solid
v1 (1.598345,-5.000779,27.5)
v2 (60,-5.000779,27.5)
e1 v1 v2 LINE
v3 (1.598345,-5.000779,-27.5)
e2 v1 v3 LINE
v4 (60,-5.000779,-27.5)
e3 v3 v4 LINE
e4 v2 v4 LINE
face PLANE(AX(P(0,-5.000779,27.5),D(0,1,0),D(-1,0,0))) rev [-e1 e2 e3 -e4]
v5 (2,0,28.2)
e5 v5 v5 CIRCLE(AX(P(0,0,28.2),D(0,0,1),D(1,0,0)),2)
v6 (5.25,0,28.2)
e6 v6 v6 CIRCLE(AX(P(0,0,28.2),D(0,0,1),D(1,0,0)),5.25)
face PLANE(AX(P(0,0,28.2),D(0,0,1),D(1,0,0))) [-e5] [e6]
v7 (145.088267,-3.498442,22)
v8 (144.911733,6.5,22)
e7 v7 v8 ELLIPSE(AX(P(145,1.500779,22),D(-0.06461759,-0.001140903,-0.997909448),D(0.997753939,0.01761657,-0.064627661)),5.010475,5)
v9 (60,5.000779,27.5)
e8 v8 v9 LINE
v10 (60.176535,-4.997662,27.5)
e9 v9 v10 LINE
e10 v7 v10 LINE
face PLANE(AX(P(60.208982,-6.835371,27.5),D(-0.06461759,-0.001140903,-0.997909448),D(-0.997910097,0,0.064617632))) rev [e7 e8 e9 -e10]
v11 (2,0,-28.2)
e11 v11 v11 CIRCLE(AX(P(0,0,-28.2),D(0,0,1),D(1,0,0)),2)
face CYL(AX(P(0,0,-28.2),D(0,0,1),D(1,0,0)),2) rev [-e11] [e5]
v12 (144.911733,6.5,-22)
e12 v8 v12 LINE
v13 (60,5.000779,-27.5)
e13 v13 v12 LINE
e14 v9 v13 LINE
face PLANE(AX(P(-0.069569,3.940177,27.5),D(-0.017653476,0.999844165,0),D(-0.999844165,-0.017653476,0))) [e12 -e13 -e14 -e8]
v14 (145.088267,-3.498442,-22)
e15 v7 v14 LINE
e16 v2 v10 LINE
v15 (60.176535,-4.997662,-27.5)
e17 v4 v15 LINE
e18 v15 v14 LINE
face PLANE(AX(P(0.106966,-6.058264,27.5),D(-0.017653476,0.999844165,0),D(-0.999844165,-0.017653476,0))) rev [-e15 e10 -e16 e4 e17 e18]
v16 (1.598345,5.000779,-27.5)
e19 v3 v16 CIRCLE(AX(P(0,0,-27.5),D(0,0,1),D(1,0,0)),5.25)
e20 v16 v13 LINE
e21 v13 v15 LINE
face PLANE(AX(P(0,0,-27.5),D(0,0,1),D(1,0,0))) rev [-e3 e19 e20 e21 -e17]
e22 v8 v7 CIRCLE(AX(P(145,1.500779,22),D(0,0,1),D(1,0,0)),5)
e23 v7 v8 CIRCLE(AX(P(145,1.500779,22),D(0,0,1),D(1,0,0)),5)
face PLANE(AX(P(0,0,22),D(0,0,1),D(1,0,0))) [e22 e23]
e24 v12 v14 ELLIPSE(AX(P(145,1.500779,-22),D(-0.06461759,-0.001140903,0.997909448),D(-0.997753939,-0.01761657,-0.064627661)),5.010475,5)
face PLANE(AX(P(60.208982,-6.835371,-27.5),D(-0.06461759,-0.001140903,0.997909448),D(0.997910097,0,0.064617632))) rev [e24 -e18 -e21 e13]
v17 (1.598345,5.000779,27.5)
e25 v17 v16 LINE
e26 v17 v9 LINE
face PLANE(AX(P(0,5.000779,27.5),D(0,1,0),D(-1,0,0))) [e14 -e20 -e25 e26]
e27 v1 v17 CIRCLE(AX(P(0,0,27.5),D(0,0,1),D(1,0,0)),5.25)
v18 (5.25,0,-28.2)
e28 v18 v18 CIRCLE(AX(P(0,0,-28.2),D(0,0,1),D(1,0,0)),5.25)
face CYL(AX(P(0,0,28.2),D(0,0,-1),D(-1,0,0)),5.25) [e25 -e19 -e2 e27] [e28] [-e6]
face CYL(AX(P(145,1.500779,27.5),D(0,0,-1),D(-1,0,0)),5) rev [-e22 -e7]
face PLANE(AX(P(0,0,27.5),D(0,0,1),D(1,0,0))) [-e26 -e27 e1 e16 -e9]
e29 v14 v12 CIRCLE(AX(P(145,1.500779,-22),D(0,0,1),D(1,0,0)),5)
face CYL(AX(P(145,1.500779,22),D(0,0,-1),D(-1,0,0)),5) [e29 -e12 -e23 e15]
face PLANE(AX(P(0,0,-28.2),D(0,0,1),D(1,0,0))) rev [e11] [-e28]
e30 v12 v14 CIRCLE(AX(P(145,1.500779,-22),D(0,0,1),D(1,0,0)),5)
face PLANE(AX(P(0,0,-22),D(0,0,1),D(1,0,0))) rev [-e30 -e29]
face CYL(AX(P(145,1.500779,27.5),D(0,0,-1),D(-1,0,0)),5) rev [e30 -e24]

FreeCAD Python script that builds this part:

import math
import FreeCAD as App
import Part
import Sketcher
from FreeCAD import Vector
Q = App.Units.Quantity

doc = App.newDocument("Part")
body = doc.addObject("PartDesign::Body", "Body")

sketch1 = doc.addObject("Sketcher::SketchObject", "Sketch")
body.addObject(sketch1)
sketch1.AttachmentSupport = (doc.XY_Plane, [""])
sketch1.MapMode = "FlatFace"
sketch1.addGeometry(Part.Circle(Vector(0, 0, 0), Vector(0, 0, 1), 5), False)
sketch1.addConstraint(Sketcher.Constraint("Coincident", 0, 3, -1, 1))
sketch1.addConstraint(Sketcher.Constraint("Diameter", 0, Q("10.5 mm")))
pad1 = doc.addObject("PartDesign::Pad", "Pad")
body.addObject(pad1)
pad1.Profile = sketch1
pad1.Length = 56.4
pad1.Midplane = True

sketch2 = doc.addObject("Sketcher::SketchObject", "Sketch001")
body.addObject(sketch2)
sketch2.AttachmentSupport = (doc.XY_Plane, [""])
sketch2.MapMode = "FlatFace"
sketch2.addGeometry(Part.LineSegment(Vector(60, 5, 0), Vector(2, 5, 0)), False)
sketch2.addGeometry(Part.ArcOfCircle(Part.Circle(Vector(0, 0, 0), Vector(0, 0, 1), 5), math.radians(0), math.radians(72)), False)
sketch2.addGeometry(Part.ArcOfCircle(Part.Circle(Vector(0, 0, 0), Vector(0, 0, 1), 5), math.radians(-72), math.radians(0)), False)
sketch2.addGeometry(Part.LineSegment(Vector(2, -5, 0), Vector(60, -5, 0)), False)
sketch2.addGeometry(Part.LineSegment(Vector(60, -5, 0), Vector(60, 5, 0)), False)
sketch2.addConstraint(Sketcher.Constraint("Coincident", 0, 2, 1, 2))
sketch2.addConstraint(Sketcher.Constraint("Tangent", 1, 1, 2, 2))
sketch2.addConstraint(Sketcher.Constraint("Coincident", 2, 1, 3, 1))
sketch2.addConstraint(Sketcher.Constraint("Coincident", 3, 2, 4, 1))
sketch2.addConstraint(Sketcher.Constraint("Coincident", 4, 2, 0, 1))
sketch2.addConstraint(Sketcher.Constraint("Horizontal", 0))
sketch2.addConstraint(Sketcher.Constraint("Horizontal", 3))
sketch2.addConstraint(Sketcher.Constraint("Vertical", 4))
sketch2.addConstraint(Sketcher.Constraint("Coincident", 1, 3, -1, 1))
sketch2.addConstraint(Sketcher.Constraint("Equal", 1, 2))
sketch2.addConstraint(Sketcher.Constraint("PointOnObject", 1, 1, -1))
sketch2.addConstraint(Sketcher.Constraint("Vertical", 0, 2, 2, 1))
sketch2.addConstraint(Sketcher.Constraint("Radius", 1, Q("5.25 mm")))
sketch2.addConstraint(Sketcher.Constraint("DistanceX", -1, 1, 3, 2, Q("60 mm")))
sketch2.addConstraint(Sketcher.Constraint("DistanceY", 4, 1, 4, 2, Q("10.001559 mm")))
pad2 = doc.addObject("PartDesign::Pad", "Pad001")
body.addObject(pad2)
pad2.Profile = sketch2
pad2.Length = 55
pad2.Midplane = True
body2 = doc.addObject("PartDesign::Body", "Body001")

sketch3 = doc.addObject("Sketcher::SketchObject", "Sketch002")
body2.addObject(sketch3)
sketch3.AttachmentSupport = (doc.getObject("XY_Plane001"), [""])
sketch3.MapMode = "FlatFace"
sketch3.addGeometry(Part.Circle(Vector(145, 2, 0), Vector(0, 0, 1), 5), False)
sketch3.addConstraint(Sketcher.Constraint("Diameter", 0, Q("10 mm")))
sketch3.addConstraint(Sketcher.Constraint("DistanceX", -1, 1, 0, 3, Q("145 mm")))
sketch3.addConstraint(Sketcher.Constraint("DistanceY", -1, 1, 0, 3, Q("1.500779 mm")))
pad3 = doc.addObject("PartDesign::Pad", "Pad002")
body2.addObject(pad3)
pad3.Profile = sketch3
pad3.Length = 44
pad3.Midplane = True
body.AllowCompound = True
doc.recompute()

boolean = doc.addObject("PartDesign::Boolean", "Boolean")
body.addObject(boolean)
boolean.Type = "Fuse"
boolean.addObjects([body2])

sketch4 = doc.addObject("Sketcher::SketchObject", "Sketch003")
body.addObject(sketch4)
sketch4.AttachmentSupport = (doc.XY_Plane, [""])
sketch4.MapMode = "FlatFace"
sketch4.addGeometry(Part.LineSegment(Vector(145, 7, 0), Vector(60, 5, 0)), False)
sketch4.addGeometry(Part.LineSegment(Vector(60, 5, 0), Vector(60, -5, 0)), False)
sketch4.addGeometry(Part.LineSegment(Vector(60, -5, 0), Vector(145, -3, 0)), False)
sketch4.addGeometry(Part.ArcOfCircle(Part.Circle(Vector(145, 2, 0), Vector(0, 0, 1), 5), math.radians(91), math.radians(271)), False)
sketch4.addConstraint(Sketcher.Constraint("Coincident", 0, 2, 1, 1))
sketch4.addConstraint(Sketcher.Constraint("Coincident", 1, 2, 2, 1))
sketch4.addConstraint(Sketcher.Constraint("Tangent", 2, 2, 3, 2))
sketch4.addConstraint(Sketcher.Constraint("Tangent", 3, 1, 0, 1))
sketch4.addConstraint(Sketcher.Constraint("Vertical", 1))
sketch4.addConstraint(Sketcher.Constraint("Parallel", 0, 2))
sketch4.addConstraint(Sketcher.Constraint("Radius", 3, Q("5 mm")))
sketch4.addConstraint(Sketcher.Constraint("DistanceX", -1, 1, 3, 3, Q("145 mm")))
sketch4.addConstraint(Sketcher.Constraint("DistanceX", -1, 1, 0, 2, Q("60 mm")))
sketch4.addConstraint(Sketcher.Constraint("DistanceY", -1, 1, 3, 1, Q("6.5 mm")))
sketch4.addConstraint(Sketcher.Constraint("DistanceY", 3, 3, 0, 2, Q("3.5 mm")))
pad4 = doc.addObject("PartDesign::Pad", "Pad003")
body.addObject(pad4)
pad4.Profile = sketch4
pad4.Length = 55
pad4.Midplane = True

sketch5 = doc.addObject("Sketcher::SketchObject", "Sketch004")
body.addObject(sketch5)
sketch5.Placement = App.Placement(Vector(-0.069569, 3.940177, 0), App.Rotation(Vector(0.999844165, 0.017653476, 0), Vector(0, 0, -0.999999999), Vector(-0.017653476, 0.999844165, 0), "ZXY"))
sketch5.addGeometry(Part.LineSegment(Vector(145, -22, 0), Vector(60, -27, 0)), False)
sketch5.addGeometry(Part.LineSegment(Vector(60, -27, 0), Vector(145, -27, 0)), False)
sketch5.addGeometry(Part.LineSegment(Vector(145, -27, 0), Vector(145, -22, 0)), False)
sketch5.addGeometry(Part.LineSegment(Vector(60, 27, 0), Vector(145, 22, 0)), False)
sketch5.addGeometry(Part.LineSegment(Vector(145, 22, 0), Vector(145, 27, 0)), False)
sketch5.addGeometry(Part.LineSegment(Vector(145, 27, 0), Vector(60, 27, 0)), False)
sketch5.addConstraint(Sketcher.Constraint("Coincident", 0, 2, 1, 1))
sketch5.addConstraint(Sketcher.Constraint("Coincident", 1, 2, 2, 1))
sketch5.addConstraint(Sketcher.Constraint("Coincident", 2, 2, 0, 1))
sketch5.addConstraint(Sketcher.Constraint("Coincident", 3, 2, 4, 1))
sketch5.addConstraint(Sketcher.Constraint("Coincident", 4, 2, 5, 1))
sketch5.addConstraint(Sketcher.Constraint("Coincident", 5, 2, 3, 1))
sketch5.addConstraint(Sketcher.Constraint("Horizontal", 1))
sketch5.addConstraint(Sketcher.Constraint("Vertical", 2))
sketch5.addConstraint(Sketcher.Constraint("Vertical", 4))
sketch5.addConstraint(Sketcher.Constraint("Horizontal", 5))
sketch5.addConstraint(Sketcher.Constraint("Symmetric", 2, 2, 3, 2, -1))
sketch5.addConstraint(Sketcher.Constraint("Symmetric", 0, 2, 5, 2, -1))
sketch5.addConstraint(Sketcher.Constraint("DistanceY", 2, 1, 2, 2, Q("5.5 mm")))
sketch5.addConstraint(Sketcher.Constraint("DistanceY", 2, 2, -1, 1, Q("22 mm")))
sketch5.addConstraint(Sketcher.Constraint("Distance", 0, Q("85.102879 mm")))
sketch5.addConstraint(Sketcher.Constraint("DistanceX", -1, 1, 0, 2, Q("60.078931 mm")))
pocket1 = doc.addObject("PartDesign::Pocket", "Pocket")
body.addObject(pocket1)
pocket1.Profile = sketch5
pocket1.Type = "ThroughAll"

sketch6 = doc.addObject("Sketcher::SketchObject", "Sketch005")
body.addObject(sketch6)
sketch6.AttachmentSupport = (doc.XY_Plane, [""])
sketch6.MapMode = "FlatFace"
sketch6.AttachmentOffset = App.Placement(Vector(0, 0, 28.2), App.Rotation())
sketch6.addGeometry(Part.Circle(Vector(0, 0, 0), Vector(0, 0, 1), 2), False)
sketch6.addConstraint(Sketcher.Constraint("Coincident", 0, 3, -1, 1))
sketch6.addConstraint(Sketcher.Constraint("Diameter", 0, Q("4 mm")))
pocket2 = doc.addObject("PartDesign::Pocket", "Pocket001")
body.addObject(pocket2)
pocket2.Profile = sketch6
pocket2.Type = "ThroughAll"

doc.recompute()
